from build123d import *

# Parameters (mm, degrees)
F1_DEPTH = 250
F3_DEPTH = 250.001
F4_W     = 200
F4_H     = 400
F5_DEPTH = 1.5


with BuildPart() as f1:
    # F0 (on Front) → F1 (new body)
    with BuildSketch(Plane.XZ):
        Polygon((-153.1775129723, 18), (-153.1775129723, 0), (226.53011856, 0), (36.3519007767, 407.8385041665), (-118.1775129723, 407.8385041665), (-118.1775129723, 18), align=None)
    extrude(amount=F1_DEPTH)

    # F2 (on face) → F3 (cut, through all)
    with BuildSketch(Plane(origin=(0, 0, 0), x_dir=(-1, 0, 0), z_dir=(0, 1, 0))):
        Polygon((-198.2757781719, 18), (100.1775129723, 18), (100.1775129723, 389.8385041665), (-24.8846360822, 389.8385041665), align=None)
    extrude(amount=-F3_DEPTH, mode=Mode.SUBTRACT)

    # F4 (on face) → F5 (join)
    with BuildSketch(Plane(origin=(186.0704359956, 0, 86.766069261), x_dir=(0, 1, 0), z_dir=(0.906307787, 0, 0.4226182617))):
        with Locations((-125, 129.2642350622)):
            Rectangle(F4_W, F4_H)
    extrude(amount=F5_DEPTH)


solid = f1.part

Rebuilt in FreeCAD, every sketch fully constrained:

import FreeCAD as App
import Part
import Sketcher
Q = App.Units.Quantity


def add_polygon(sketch, points):
    """Adds a closed chain of lines whose ends are joined by coincident constraints."""
    first, n = sketch.GeometryCount, len(points)
    for a, b in zip(points, points[1:] + points[:1]):
        sketch.addGeometry(Part.LineSegment(App.Vector(*a, 0), App.Vector(*b, 0)), False)
    for i in range(n):
        sketch.addConstraint(Sketcher.Constraint("Coincident", first + i, 2, first + (i + 1) % n, 1))

doc = App.newDocument("Part")
body = doc.addObject("PartDesign::Body", "Body")

# Sketch on XZ plane
sketch1 = body.newObject("Sketcher::SketchObject", "Sketch")
sketch1.AttachmentSupport = (doc.getObject("XZ_Plane"), [""])
sketch1.MapMode = "FlatFace"
add_polygon(sketch1, [(-153, 18), (-153, 0), (227, 0), (36, 408), (-118, 408), (-118, 18)])  # lines 0-5
sketch1.addConstraint([
    Sketcher.Constraint("Vertical", 0),
    Sketcher.Constraint("Horizontal", 1),
    Sketcher.Constraint("Horizontal", 3),
    Sketcher.Constraint("Vertical", 4),
    Sketcher.Constraint("Horizontal", 5),
    Sketcher.Constraint("PointOnObject", 0, 2, -1),
    Sketcher.Constraint("DistanceX", 5, 2, 5, 1, 35.0),
    Sketcher.Constraint("DistanceY", 0, 2, 0, 1, 18.0),
    Sketcher.Constraint("Angle", 2, Q("115 deg")),
    Sketcher.Constraint("Distance", 2, 450.0),
    Sketcher.Constraint("DistanceX", 1, 1, 1, 2, 379.707632),
    Sketcher.Constraint("DistanceX", -1, 1, 2, 2, 36.351901),
])
pad1 = body.newObject("PartDesign::Pad", "Pad")
pad1.Profile = sketch1
pad1.Length = 250

# Sketch on XZ plane
sketch2 = body.newObject("Sketcher::SketchObject", "Sketch001")
sketch2.AttachmentSupport = (doc.getObject("XZ_Plane"), [""])
sketch2.MapMode = "FlatFace"
add_polygon(sketch2, [(198, 18), (-100, 18), (-100, 390), (25, 390)])  # lines 0-3
sketch2.addConstraint([
    Sketcher.Constraint("Horizontal", 0),
    Sketcher.Constraint("Vertical", 1),
    Sketcher.Constraint("Horizontal", 2),
    Sketcher.Constraint("Angle", 3, Q("-65 deg")),
    Sketcher.Constraint("DistanceY", -1, 1, 0, 2, 18.0),
    Sketcher.Constraint("DistanceX", 0, 2, 0, 1, 298.453291),
    Sketcher.Constraint("DistanceX", 2, 1, 2, 2, 125.062149),
    Sketcher.Constraint("DistanceX", -1, 1, 3, 2, 198.275778),
])
pocket1 = body.newObject("PartDesign::Pocket", "Pocket")
pocket1.Profile = sketch2
pocket1.Type = "ThroughAll"
pocket1.Reversed = True

# Sketch on an angled plane
sketch3 = body.newObject("Sketcher::SketchObject", "Sketch002")
sketch3.Placement = App.Placement(App.Vector(186.070436, 0, 86.766069), App.Rotation(App.Vector(0, 1, 0), App.Vector(-0.422618262, 0, 0.906307787), App.Vector(0.906307787, 0, 0.422618262), "ZXY"))
add_polygon(sketch3, [(-225, 329), (-225, -71), (-25, -71), (-25, 329)])  # lines 0-3
sketch3.addConstraint([
    Sketcher.Constraint("Vertical", 0),
    Sketcher.Constraint("Horizontal", 1),
    Sketcher.Constraint("Vertical", 2),
    Sketcher.Constraint("Horizontal", 3),
    Sketcher.Constraint("DistanceX", 1, 1, 1, 2, 200.0),
    Sketcher.Constraint("DistanceY", 0, 2, 0, 1, 400.0),
    Sketcher.Constraint("DistanceX", 0, 2, -1, 1, 225.0),
    Sketcher.Constraint("DistanceY", 0, 2, -1, 1, 70.735765),
])
pad2 = body.newObject("PartDesign::Pad", "Pad001")
pad2.Profile = sketch3
pad2.Length = 1.5

doc.recompute()
